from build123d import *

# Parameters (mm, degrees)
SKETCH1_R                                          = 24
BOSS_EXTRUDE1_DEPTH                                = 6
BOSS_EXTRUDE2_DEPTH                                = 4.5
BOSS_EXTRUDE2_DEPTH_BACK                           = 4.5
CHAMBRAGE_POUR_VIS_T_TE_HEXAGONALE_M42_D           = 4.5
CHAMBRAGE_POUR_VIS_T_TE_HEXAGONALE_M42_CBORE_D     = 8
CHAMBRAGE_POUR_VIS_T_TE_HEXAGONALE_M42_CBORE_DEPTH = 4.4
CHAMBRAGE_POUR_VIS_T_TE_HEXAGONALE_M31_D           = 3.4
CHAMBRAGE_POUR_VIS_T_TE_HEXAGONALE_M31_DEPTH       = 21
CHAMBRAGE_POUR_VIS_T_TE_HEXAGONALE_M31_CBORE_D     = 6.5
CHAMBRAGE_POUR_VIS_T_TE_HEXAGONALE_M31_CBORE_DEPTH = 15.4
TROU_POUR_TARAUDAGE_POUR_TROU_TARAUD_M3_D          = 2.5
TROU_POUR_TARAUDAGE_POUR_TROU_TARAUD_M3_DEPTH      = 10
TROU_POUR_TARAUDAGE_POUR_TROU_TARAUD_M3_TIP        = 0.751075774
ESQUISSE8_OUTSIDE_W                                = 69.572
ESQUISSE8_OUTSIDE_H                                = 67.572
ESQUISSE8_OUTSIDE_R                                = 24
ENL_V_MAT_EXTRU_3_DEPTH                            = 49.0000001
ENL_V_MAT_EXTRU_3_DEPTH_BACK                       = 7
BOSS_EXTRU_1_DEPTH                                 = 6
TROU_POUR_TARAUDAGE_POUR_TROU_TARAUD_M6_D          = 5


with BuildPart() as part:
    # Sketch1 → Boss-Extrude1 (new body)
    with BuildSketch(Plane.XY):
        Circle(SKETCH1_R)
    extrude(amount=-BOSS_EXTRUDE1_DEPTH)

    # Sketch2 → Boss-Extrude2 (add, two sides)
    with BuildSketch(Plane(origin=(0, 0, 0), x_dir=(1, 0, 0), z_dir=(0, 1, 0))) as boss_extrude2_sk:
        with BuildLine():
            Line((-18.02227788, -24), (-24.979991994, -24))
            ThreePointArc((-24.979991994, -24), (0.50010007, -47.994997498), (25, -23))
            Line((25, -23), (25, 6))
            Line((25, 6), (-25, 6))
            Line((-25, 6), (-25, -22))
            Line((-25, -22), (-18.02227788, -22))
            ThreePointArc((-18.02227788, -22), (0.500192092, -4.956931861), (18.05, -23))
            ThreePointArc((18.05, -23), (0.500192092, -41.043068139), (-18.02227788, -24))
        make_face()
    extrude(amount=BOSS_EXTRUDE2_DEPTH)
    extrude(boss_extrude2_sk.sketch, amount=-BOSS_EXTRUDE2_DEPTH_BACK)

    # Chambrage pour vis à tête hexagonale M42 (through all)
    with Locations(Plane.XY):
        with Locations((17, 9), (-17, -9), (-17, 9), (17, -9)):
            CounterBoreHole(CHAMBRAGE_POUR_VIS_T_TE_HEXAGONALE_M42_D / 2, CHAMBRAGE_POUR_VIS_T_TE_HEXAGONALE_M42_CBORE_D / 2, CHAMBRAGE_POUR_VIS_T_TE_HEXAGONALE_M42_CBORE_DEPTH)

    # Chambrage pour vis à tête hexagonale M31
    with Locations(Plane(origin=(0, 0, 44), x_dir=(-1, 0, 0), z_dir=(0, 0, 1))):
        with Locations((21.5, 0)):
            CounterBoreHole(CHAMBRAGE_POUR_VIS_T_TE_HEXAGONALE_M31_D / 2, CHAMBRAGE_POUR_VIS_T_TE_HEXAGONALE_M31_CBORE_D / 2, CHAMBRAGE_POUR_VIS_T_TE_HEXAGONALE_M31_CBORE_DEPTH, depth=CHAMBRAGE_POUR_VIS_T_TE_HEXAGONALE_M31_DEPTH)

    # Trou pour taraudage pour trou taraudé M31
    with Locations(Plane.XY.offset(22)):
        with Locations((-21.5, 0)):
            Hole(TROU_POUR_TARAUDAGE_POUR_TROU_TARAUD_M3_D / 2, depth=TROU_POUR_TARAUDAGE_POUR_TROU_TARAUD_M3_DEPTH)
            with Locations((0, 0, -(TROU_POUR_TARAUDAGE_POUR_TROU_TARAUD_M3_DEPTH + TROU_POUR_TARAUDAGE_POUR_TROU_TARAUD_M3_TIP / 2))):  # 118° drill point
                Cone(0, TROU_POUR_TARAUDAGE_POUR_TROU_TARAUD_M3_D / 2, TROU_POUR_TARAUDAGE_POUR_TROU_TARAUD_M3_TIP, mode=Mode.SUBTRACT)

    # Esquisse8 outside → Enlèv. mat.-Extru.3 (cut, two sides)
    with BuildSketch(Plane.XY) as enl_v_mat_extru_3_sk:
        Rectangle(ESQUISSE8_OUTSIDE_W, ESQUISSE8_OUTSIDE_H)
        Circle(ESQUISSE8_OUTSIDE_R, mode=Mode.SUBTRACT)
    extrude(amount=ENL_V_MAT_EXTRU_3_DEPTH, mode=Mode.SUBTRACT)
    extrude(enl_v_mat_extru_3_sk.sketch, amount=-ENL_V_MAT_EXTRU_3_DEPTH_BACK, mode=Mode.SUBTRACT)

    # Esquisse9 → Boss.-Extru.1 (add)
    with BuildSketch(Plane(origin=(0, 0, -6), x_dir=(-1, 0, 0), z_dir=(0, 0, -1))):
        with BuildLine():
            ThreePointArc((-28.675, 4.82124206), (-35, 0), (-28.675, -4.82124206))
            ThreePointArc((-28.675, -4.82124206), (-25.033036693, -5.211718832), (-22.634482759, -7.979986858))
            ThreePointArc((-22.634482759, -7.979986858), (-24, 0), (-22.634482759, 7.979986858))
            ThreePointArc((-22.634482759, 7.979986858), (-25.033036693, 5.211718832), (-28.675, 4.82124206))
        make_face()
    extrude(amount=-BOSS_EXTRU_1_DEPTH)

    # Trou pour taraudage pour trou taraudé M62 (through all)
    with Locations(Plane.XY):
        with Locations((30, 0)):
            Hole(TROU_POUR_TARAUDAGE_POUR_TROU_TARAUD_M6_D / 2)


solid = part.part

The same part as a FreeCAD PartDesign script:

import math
import FreeCAD as App
import Part
import Sketcher

V = App.Vector
Q = App.Units.Quantity


def add_polygon(sketch, points):
    """Adds a closed chain of lines whose ends are joined by coincident constraints."""
    first, n = sketch.GeometryCount, len(points)
    for a, b in zip(points, points[1:] + points[:1]):
        sketch.addGeometry(Part.LineSegment(App.Vector(*a, 0), App.Vector(*b, 0)), False)
    for i in range(n):
        sketch.addConstraint(Sketcher.Constraint("Coincident", first + i, 2, first + (i + 1) % n, 1))

doc = App.newDocument("Part")
params = doc.addObject("Spreadsheet::Sheet", "Params")
for row, (alias, value) in enumerate([
    ("sketch1_diameter", "48 mm"),
    ("pad1_length", "6 mm"),
    ("sketch2_radius", "25 mm"),
    ("sketch2_width", "50 mm"),
    ("sketch2_height", "29 mm"),
    ("sketch2_height2", "28 mm"),
    ("sketch2_radius2", "18.05 mm"),
    ("pad2_length", "4.5 mm"),
    ("pad2_length2", "4.5 mm"),
    ("sketch3_diameter", "4.5 mm"),
    ("hole_diameter", "4.5 mm"),
    ("hole_cbore_diameter", "8 mm"),
    ("hole_cbore_depth", "4.4 mm"),
    ("sketch4_diameter", "3.4 mm"),
    ("hole2_diameter", "3.4 mm"),
    ("hole2_depth", "21 mm"),
    ("hole2_cbore_diameter", "6.5 mm"),
    ("hole2_cbore_depth", "15.4 mm"),
    ("sketch5_diameter", "2.5 mm"),
    ("hole3_diameter", "2.5 mm"),
    ("hole3_depth", "10 mm"),
    ("sketch6_diameter", "48 mm"),
    ("sketch7_radius", "5 mm"),
    ("sketch7_radius2", "24 mm"),
    ("pad3_length", "6 mm"),
    ("sketch8_diameter", "5 mm"),
    ("hole4_diameter", "5 mm"),
], start=1):
    params.set(f"A{row}", alias)
    params.set(f"B{row}", "=" + value)
    params.setAlias(f"B{row}", alias)

body = doc.addObject("PartDesign::Body", "Body")

sketch1 = body.newObject("Sketcher::SketchObject", "Sketch")
sketch1.AttachmentSupport = (doc.getObject("XY_Plane"), [""])
sketch1.MapMode = "FlatFace"
sketch1.addGeometry(Part.Circle(V(0, 0, 0), V(0, 0, 1), 24), False)
sketch1.addConstraint([
    Sketcher.Constraint("Coincident", 0, 3, -1, 1),
    Sketcher.Constraint("Diameter", 0, Q("48 mm")),
])
sketch1.setExpression("Constraints[1]", "Params.sketch1_diameter")
pad1 = body.newObject("PartDesign::Pad", "Pad")
pad1.Profile = sketch1
pad1.setExpression("Length", "Params.pad1_length")
pad1.Reversed = True

sketch2 = body.newObject("Sketcher::SketchObject", "Sketch001")
sketch2.AttachmentSupport = (doc.getObject("XZ_Plane"), [""])
sketch2.MapMode = "FlatFace"
sketch2.addGeometry([
    Part.LineSegment(V(-18.022278, 24, 0), V(-24.979992, 24, 0)),
    Part.ArcOfCircle(Part.Circle(V(0, 23, 0), V(0, 0, 1), 25), math.radians(0), math.radians(177.707557)),
    Part.LineSegment(V(25, 23, 0), V(25, -6, 0)),
    Part.LineSegment(V(25, -6, 0), V(-25, -6, 0)),
    Part.LineSegment(V(-25, -6, 0), V(-25, 22, 0)),
    Part.LineSegment(V(-25, 22, 0), V(-18.022278, 22, 0)),
    Part.ArcOfCircle(Part.Circle(V(0, 23, 0), V(0, 0, 1), 18.05), math.radians(-176.824093), math.radians(0)),
    Part.ArcOfCircle(Part.Circle(V(0, 23, 0), V(0, 0, 1), 18.05), math.radians(0), math.radians(176.824093)),
], False)
sketch2.addConstraint([
    Sketcher.Constraint("Coincident", 0, 2, 1, 2),
    Sketcher.Constraint("Tangent", 1, 1, 2, 1),
    Sketcher.Constraint("Coincident", 2, 2, 3, 1),
    Sketcher.Constraint("Coincident", 3, 2, 4, 1),
    Sketcher.Constraint("Coincident", 4, 2, 5, 1),
    Sketcher.Constraint("Coincident", 5, 2, 6, 1),
    Sketcher.Constraint("Tangent", 6, 2, 7, 1),
    Sketcher.Constraint("Coincident", 7, 2, 0, 1),
    Sketcher.Constraint("Horizontal", 0),
    Sketcher.Constraint("Vertical", 2),
    Sketcher.Constraint("Horizontal", 3),
    Sketcher.Constraint("Vertical", 4),
    Sketcher.Constraint("Horizontal", 5),
    Sketcher.Constraint("Coincident", 6, 3, 1, 3),
    Sketcher.Constraint("Equal", 6, 7),
    Sketcher.Constraint("PointOnObject", 1, 3, -2),
    Sketcher.Constraint("Horizontal", 1, 1, 6, 2),
    Sketcher.Constraint("Vertical", 5, 2, 7, 2),
    Sketcher.Constraint("Radius", 1, Q("25 mm")),
    Sketcher.Constraint("DistanceX", 3, 2, 3, 1, Q("50 mm")),
    Sketcher.Constraint("DistanceY", 2, 2, 2, 1, Q("29 mm")),
    Sketcher.Constraint("DistanceY", 4, 1, 4, 2, Q("28 mm")),
    Sketcher.Constraint("Radius", 6, Q("18.05 mm")),
    Sketcher.Constraint("DistanceY", -1, 1, 1, 3, Q("23 mm")),
])
sketch2.setExpression("Constraints[18]", "Params.sketch2_radius")
sketch2.setExpression("Constraints[19]", "Params.sketch2_width")
sketch2.setExpression("Constraints[20]", "Params.sketch2_height")
sketch2.setExpression("Constraints[21]", "Params.sketch2_height2")
sketch2.setExpression("Constraints[22]", "Params.sketch2_radius2")
pad2 = body.newObject("PartDesign::Pad", "Pad001")
pad2.Profile = sketch2
pad2.Type = "TwoLengths"
pad2.setExpression("Length", "Params.pad2_length")
pad2.setExpression("Length2", "Params.pad2_length2")
pad2.Reversed = True

sketch3 = body.newObject("Sketcher::SketchObject", "Sketch002")
sketch3.AttachmentSupport = (doc.getObject("XY_Plane"), [""])
sketch3.MapMode = "FlatFace"
sketch3.addGeometry([
    Part.Circle(V(17, 9, 0), V(0, 0, 1), 2.25),
    Part.Circle(V(-17, -9, 0), V(0, 0, 1), 2.25),
    Part.Circle(V(-17, 9, 0), V(0, 0, 1), 2.25),
    Part.Circle(V(17, -9, 0), V(0, 0, 1), 2.25),
], False)
sketch3.addConstraint([
    Sketcher.Constraint("Equal", 0, 1),
    Sketcher.Constraint("Equal", 1, 2),
    Sketcher.Constraint("Equal", 2, 3),
    Sketcher.Constraint("Symmetric", 0, 3, 1, 3, -1, 1),
    Sketcher.Constraint("Symmetric", 2, 3, 3, 3, -1, 1),
    Sketcher.Constraint("Symmetric", 0, 3, 2, 3, -2),
    Sketcher.Constraint("Diameter", 0, Q("4.5 mm")),
    Sketcher.Constraint("DistanceX", -1, 1, 0, 3, Q("17 mm")),
    Sketcher.Constraint("DistanceY", -1, 1, 0, 3, Q("9 mm")),
])
sketch3.setExpression("Constraints[6]", "Params.sketch3_diameter")
doc.recompute()
hole = body.newObject("PartDesign::Hole", "Hole")
hole.Profile = sketch3
hole.ThreadType = "None"
hole.setExpression("Diameter", "Params.hole_diameter")
hole.DepthType = "ThroughAll"
hole.HoleCutType = "Counterbore"
hole.setExpression("HoleCutDiameter", "Params.hole_cbore_diameter")
hole.setExpression("HoleCutDepth", "Params.hole_cbore_depth")

sketch4 = body.newObject("Sketcher::SketchObject", "Sketch003")
sketch4.AttachmentSupport = (doc.getObject("XY_Plane"), [""])
sketch4.MapMode = "FlatFace"
sketch4.AttachmentOffset = App.Placement(V(0, 0, 44), App.Rotation())
sketch4.addGeometry(Part.Circle(V(-21.5, 0, 0), V(0, 0, 1), 1.7), False)
sketch4.addConstraint([
    Sketcher.Constraint("PointOnObject", 0, 3, -1),
    Sketcher.Constraint("Diameter", 0, Q("3.4 mm")),
    Sketcher.Constraint("DistanceX", 0, 3, -1, 1, Q("21.5 mm")),
])
sketch4.setExpression("Constraints[1]", "Params.sketch4_diameter")
doc.recompute()
hole2 = body.newObject("PartDesign::Hole", "Hole001")
hole2.Profile = sketch4
hole2.ThreadType = "None"
hole2.setExpression("Diameter", "Params.hole2_diameter")
hole2.DepthType = "Dimension"
hole2.setExpression("Depth", "Params.hole2_depth")
hole2.DrillPoint = "Flat"
hole2.HoleCutType = "Counterbore"
hole2.setExpression("HoleCutDiameter", "Params.hole2_cbore_diameter")
hole2.setExpression("HoleCutDepth", "Params.hole2_cbore_depth")

sketch5 = body.newObject("Sketcher::SketchObject", "Sketch004")
sketch5.AttachmentSupport = (doc.getObject("XY_Plane"), [""])
sketch5.MapMode = "FlatFace"
sketch5.AttachmentOffset = App.Placement(V(0, 0, 22), App.Rotation())
sketch5.addGeometry(Part.Circle(V(-21.5, 0, 0), V(0, 0, 1), 1.25), False)
sketch5.addConstraint([
    Sketcher.Constraint("PointOnObject", 0, 3, -1),
    Sketcher.Constraint("Diameter", 0, Q("2.5 mm")),
    Sketcher.Constraint("DistanceX", 0, 3, -1, 1, Q("21.5 mm")),
])
sketch5.setExpression("Constraints[1]", "Params.sketch5_diameter")
doc.recompute()
hole3 = body.newObject("PartDesign::Hole", "Hole002")
hole3.Profile = sketch5
hole3.ThreadType = "None"
hole3.setExpression("Diameter", "Params.hole3_diameter")
hole3.DepthType = "Dimension"
hole3.setExpression("Depth", "Params.hole3_depth")
hole3.DrillPoint = "Angled"
hole3.DrillPointAngle = 118

sketch6 = body.newObject("Sketcher::SketchObject", "Sketch005")
sketch6.AttachmentSupport = (doc.getObject("XY_Plane"), [""])
sketch6.MapMode = "FlatFace"
add_polygon(sketch6, [(-34.786, 33.786), (-34.786, -33.786), (34.786, -33.786), (34.786, 33.786)])
sketch6.addGeometry(Part.Circle(V(0, 0, 0), V(0, 0, 1), 24), False)
sketch6.addConstraint([
    Sketcher.Constraint("Vertical", 0),
    Sketcher.Constraint("Horizontal", 1),
    Sketcher.Constraint("Vertical", 2),
    Sketcher.Constraint("Horizontal", 3),
    Sketcher.Constraint("Coincident", 4, 3, -1, 1),
    Sketcher.Constraint("Symmetric", 0, 2, 2, 2, -1, 1),
    Sketcher.Constraint("Diameter", 4, Q("48 mm")),
    Sketcher.Constraint("DistanceX", 1, 1, 1, 2, Q("69.572 mm")),
    Sketcher.Constraint("DistanceY", 0, 2, 0, 1, Q("67.572 mm")),
])
sketch6.setExpression("Constraints[10]", "Params.sketch6_diameter")
pocket1 = body.newObject("PartDesign::Pocket", "Pocket")
pocket1.Profile = sketch6
pocket1.Type = "ThroughAll"
pocket1.Midplane = True

sketch7 = body.newObject("Sketcher::SketchObject", "Sketch006")
sketch7.AttachmentSupport = (doc.getObject("XY_Plane"), [""])
sketch7.MapMode = "FlatFace"
sketch7.AttachmentOffset = App.Placement(V(0, 0, -6), App.Rotation())
sketch7.addGeometry([
    Part.ArcOfCircle(Part.Circle(V(30, 0, 0), V(0, 0, 1), 5), math.radians(-105.366953), math.radians(105.366953)),
    Part.ArcOfCircle(Part.Circle(V(27.35, -9.642484, 0), V(0, 0, 1), 5), math.radians(74.633047), math.radians(160.579448)),
    Part.ArcOfCircle(Part.Circle(V(0, 0, 0), V(0, 0, 1), 24), math.radians(-19.420552), math.radians(19.420552)),
    Part.ArcOfCircle(Part.Circle(V(27.35, 9.642484, 0), V(0, 0, 1), 5), math.radians(-160.579448), math.radians(-74.633047)),
], False)
sketch7.addConstraint([
    Sketcher.Constraint("Tangent", 0, 1, 1, 1),
    Sketcher.Constraint("Tangent", 1, 2, 2, 1),
    Sketcher.Constraint("Tangent", 2, 2, 3, 1),
    Sketcher.Constraint("Tangent", 3, 2, 0, 2),
    Sketcher.Constraint("Coincident", 2, 3, -1, 1),
    Sketcher.Constraint("Equal", 0, 1),
    Sketcher.Constraint("Equal", 1, 3),
    Sketcher.Constraint("PointOnObject", 0, 3, -1),
    Sketcher.Constraint("Radius", 0, Q("5 mm")),
    Sketcher.Constraint("Radius", 2, Q("24 mm")),
    Sketcher.Constraint("DistanceX", -1, 1, 0, 3, Q("30 mm")),
])
sketch7.setExpression("Constraints[8]", "Params.sketch7_radius")
sketch7.setExpression("Constraints[9]", "Params.sketch7_radius2")
pad3 = body.newObject("PartDesign::Pad", "Pad002")
pad3.Profile = sketch7
pad3.setExpression("Length", "Params.pad3_length")

sketch8 = body.newObject("Sketcher::SketchObject", "Sketch007")
sketch8.AttachmentSupport = (doc.getObject("XY_Plane"), [""])
sketch8.MapMode = "FlatFace"
sketch8.addGeometry(Part.Circle(V(30, 0, 0), V(0, 0, 1), 2.5), False)
sketch8.addConstraint([
    Sketcher.Constraint("PointOnObject", 0, 3, -1),
    Sketcher.Constraint("Diameter", 0, Q("5 mm")),
    Sketcher.Constraint("DistanceX", -1, 1, 0, 3, Q("30 mm")),
])
sketch8.setExpression("Constraints[1]", "Params.sketch8_diameter")
doc.recompute()
hole4 = body.newObject("PartDesign::Hole", "Hole003")
hole4.Profile = sketch8
hole4.ThreadType = "None"
hole4.setExpression("Diameter", "Params.hole4_diameter")
hole4.DepthType = "ThroughAll"

doc.recompute()
